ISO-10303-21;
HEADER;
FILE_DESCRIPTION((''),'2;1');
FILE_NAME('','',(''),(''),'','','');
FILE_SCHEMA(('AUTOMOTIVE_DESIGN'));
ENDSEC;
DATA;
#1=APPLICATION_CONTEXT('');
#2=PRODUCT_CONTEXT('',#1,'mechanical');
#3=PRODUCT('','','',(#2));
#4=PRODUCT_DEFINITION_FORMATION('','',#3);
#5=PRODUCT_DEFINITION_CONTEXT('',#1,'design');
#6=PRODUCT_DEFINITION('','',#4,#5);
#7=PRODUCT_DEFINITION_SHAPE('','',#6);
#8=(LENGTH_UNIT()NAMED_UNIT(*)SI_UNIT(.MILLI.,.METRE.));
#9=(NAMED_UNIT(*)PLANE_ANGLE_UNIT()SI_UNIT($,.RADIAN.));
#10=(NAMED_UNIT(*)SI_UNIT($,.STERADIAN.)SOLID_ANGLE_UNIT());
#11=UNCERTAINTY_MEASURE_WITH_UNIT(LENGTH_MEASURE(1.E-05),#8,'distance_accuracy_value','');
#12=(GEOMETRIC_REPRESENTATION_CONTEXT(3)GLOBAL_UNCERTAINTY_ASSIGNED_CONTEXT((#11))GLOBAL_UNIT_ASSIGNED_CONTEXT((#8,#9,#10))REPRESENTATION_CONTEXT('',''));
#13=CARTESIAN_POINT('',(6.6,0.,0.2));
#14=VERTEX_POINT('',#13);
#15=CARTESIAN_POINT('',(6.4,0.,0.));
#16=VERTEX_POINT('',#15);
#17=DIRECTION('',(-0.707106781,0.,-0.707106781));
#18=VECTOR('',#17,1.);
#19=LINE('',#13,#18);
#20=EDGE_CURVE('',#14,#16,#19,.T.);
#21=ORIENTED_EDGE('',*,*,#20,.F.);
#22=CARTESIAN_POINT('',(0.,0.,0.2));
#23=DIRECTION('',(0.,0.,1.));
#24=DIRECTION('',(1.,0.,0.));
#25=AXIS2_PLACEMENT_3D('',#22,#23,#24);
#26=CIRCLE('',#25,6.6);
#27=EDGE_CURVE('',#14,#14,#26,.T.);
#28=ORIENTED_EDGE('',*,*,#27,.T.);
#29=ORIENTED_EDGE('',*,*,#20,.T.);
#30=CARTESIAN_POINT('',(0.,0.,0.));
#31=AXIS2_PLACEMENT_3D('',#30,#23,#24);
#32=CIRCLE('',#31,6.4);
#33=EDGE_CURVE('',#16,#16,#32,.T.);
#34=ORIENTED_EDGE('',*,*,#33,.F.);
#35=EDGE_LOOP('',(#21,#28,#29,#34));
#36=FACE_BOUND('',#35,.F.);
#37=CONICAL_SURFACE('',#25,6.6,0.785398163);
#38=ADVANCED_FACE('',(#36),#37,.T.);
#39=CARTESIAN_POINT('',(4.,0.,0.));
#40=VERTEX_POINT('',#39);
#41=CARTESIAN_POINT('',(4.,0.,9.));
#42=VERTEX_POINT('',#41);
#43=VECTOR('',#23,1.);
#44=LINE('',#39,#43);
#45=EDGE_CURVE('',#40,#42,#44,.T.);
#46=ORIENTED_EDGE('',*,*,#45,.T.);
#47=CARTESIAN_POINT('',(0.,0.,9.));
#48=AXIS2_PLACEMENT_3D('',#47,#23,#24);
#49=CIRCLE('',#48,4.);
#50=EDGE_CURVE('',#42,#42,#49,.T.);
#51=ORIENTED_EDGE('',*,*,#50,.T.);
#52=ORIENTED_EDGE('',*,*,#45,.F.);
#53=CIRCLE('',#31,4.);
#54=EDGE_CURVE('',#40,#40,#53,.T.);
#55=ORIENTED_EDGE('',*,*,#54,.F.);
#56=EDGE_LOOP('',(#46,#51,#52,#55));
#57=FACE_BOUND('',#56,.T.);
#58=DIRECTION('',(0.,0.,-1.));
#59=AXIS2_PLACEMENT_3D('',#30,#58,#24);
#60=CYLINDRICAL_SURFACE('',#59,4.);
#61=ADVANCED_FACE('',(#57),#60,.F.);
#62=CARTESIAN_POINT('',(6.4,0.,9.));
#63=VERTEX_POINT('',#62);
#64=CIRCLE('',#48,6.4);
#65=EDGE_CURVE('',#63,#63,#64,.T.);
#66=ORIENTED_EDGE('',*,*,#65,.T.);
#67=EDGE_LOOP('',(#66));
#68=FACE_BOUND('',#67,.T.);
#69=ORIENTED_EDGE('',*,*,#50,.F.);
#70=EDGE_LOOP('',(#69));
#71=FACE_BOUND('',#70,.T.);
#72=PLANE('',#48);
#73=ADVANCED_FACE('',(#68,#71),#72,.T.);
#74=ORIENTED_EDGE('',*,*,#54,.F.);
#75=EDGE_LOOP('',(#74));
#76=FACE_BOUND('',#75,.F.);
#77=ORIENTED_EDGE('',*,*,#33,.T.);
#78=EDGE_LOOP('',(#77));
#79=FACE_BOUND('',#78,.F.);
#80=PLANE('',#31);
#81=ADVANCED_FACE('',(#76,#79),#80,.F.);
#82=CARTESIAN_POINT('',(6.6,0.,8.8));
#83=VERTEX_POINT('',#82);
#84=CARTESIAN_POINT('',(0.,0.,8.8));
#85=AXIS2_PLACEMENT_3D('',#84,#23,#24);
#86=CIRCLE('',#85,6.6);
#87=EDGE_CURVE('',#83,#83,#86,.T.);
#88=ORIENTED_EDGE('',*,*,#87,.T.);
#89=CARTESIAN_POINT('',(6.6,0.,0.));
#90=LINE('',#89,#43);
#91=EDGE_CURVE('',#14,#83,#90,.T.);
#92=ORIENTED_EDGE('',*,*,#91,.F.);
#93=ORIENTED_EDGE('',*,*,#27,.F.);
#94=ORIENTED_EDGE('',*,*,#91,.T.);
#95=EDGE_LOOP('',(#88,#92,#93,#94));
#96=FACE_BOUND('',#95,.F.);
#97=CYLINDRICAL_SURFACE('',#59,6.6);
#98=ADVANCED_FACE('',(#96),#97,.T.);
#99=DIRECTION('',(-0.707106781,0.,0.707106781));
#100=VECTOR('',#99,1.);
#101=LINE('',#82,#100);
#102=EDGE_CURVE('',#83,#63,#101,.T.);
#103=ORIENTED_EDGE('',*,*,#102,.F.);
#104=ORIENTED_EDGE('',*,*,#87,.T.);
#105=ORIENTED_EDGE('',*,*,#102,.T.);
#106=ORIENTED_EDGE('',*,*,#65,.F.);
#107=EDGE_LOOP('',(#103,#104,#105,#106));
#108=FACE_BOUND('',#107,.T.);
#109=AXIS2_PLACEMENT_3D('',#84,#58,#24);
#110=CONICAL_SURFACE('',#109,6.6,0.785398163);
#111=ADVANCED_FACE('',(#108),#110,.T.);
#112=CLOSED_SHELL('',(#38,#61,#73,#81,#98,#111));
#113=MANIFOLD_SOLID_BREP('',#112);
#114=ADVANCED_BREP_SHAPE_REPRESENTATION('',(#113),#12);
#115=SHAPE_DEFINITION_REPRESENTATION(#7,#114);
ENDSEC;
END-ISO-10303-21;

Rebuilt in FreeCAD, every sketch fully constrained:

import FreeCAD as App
import Part
import Sketcher
from FreeCAD import Vector


def edges_at(feature, points):
    """Names of the edges that pass closest to the given points."""
    edges = feature.Shape.Edges
    near = lambda p: min(range(len(edges)), key=lambda i: edges[i].distToShape(Part.Vertex(*p))[0])
    return sorted({f"Edge{near(p) + 1}" for p in points})

doc = App.newDocument("Part")
body = doc.addObject("PartDesign::Body", "Body")

# Sketch on XY plane
sketch1 = body.newObject("Sketcher::SketchObject", "Sketch")
sketch1.AttachmentSupport = (doc.getObject("XY_Plane"), [""])
sketch1.MapMode = "FlatFace"
sketch1.addGeometry(Part.Circle(Vector(0, 0, 0), Vector(0, 0, 1), 6.6), False)
sketch1.addGeometry(Part.Circle(Vector(0, 0, 0), Vector(0, 0, 1), 4), False)
sketch1.addConstraint(Sketcher.Constraint("Coincident", 0, 3, -1, 1))
sketch1.addConstraint(Sketcher.Constraint("Coincident", 1, 3, -1, 1))
sketch1.addConstraint(Sketcher.Constraint("Diameter", 1, 8.0))
sketch1.addConstraint(Sketcher.Constraint("Diameter", 0, 13.2))
pad1 = body.newObject("PartDesign::Pad", "Pad")
pad1.Profile = sketch1
pad1.Length = 9
doc.recompute()

chamfer = body.newObject("PartDesign::Chamfer", "Chamfer")
chamfer.Base = (pad1, edges_at(pad1, [(-6.153, -2.387, 9)]))
chamfer.Size = 0.2
doc.recompute()

chamfer2 = body.newObject("PartDesign::Chamfer", "Chamfer001")
chamfer2.Base = (chamfer, edges_at(chamfer, [(-6.153, -2.387, 0)]))
chamfer2.Size = 0.2

doc.recompute()
